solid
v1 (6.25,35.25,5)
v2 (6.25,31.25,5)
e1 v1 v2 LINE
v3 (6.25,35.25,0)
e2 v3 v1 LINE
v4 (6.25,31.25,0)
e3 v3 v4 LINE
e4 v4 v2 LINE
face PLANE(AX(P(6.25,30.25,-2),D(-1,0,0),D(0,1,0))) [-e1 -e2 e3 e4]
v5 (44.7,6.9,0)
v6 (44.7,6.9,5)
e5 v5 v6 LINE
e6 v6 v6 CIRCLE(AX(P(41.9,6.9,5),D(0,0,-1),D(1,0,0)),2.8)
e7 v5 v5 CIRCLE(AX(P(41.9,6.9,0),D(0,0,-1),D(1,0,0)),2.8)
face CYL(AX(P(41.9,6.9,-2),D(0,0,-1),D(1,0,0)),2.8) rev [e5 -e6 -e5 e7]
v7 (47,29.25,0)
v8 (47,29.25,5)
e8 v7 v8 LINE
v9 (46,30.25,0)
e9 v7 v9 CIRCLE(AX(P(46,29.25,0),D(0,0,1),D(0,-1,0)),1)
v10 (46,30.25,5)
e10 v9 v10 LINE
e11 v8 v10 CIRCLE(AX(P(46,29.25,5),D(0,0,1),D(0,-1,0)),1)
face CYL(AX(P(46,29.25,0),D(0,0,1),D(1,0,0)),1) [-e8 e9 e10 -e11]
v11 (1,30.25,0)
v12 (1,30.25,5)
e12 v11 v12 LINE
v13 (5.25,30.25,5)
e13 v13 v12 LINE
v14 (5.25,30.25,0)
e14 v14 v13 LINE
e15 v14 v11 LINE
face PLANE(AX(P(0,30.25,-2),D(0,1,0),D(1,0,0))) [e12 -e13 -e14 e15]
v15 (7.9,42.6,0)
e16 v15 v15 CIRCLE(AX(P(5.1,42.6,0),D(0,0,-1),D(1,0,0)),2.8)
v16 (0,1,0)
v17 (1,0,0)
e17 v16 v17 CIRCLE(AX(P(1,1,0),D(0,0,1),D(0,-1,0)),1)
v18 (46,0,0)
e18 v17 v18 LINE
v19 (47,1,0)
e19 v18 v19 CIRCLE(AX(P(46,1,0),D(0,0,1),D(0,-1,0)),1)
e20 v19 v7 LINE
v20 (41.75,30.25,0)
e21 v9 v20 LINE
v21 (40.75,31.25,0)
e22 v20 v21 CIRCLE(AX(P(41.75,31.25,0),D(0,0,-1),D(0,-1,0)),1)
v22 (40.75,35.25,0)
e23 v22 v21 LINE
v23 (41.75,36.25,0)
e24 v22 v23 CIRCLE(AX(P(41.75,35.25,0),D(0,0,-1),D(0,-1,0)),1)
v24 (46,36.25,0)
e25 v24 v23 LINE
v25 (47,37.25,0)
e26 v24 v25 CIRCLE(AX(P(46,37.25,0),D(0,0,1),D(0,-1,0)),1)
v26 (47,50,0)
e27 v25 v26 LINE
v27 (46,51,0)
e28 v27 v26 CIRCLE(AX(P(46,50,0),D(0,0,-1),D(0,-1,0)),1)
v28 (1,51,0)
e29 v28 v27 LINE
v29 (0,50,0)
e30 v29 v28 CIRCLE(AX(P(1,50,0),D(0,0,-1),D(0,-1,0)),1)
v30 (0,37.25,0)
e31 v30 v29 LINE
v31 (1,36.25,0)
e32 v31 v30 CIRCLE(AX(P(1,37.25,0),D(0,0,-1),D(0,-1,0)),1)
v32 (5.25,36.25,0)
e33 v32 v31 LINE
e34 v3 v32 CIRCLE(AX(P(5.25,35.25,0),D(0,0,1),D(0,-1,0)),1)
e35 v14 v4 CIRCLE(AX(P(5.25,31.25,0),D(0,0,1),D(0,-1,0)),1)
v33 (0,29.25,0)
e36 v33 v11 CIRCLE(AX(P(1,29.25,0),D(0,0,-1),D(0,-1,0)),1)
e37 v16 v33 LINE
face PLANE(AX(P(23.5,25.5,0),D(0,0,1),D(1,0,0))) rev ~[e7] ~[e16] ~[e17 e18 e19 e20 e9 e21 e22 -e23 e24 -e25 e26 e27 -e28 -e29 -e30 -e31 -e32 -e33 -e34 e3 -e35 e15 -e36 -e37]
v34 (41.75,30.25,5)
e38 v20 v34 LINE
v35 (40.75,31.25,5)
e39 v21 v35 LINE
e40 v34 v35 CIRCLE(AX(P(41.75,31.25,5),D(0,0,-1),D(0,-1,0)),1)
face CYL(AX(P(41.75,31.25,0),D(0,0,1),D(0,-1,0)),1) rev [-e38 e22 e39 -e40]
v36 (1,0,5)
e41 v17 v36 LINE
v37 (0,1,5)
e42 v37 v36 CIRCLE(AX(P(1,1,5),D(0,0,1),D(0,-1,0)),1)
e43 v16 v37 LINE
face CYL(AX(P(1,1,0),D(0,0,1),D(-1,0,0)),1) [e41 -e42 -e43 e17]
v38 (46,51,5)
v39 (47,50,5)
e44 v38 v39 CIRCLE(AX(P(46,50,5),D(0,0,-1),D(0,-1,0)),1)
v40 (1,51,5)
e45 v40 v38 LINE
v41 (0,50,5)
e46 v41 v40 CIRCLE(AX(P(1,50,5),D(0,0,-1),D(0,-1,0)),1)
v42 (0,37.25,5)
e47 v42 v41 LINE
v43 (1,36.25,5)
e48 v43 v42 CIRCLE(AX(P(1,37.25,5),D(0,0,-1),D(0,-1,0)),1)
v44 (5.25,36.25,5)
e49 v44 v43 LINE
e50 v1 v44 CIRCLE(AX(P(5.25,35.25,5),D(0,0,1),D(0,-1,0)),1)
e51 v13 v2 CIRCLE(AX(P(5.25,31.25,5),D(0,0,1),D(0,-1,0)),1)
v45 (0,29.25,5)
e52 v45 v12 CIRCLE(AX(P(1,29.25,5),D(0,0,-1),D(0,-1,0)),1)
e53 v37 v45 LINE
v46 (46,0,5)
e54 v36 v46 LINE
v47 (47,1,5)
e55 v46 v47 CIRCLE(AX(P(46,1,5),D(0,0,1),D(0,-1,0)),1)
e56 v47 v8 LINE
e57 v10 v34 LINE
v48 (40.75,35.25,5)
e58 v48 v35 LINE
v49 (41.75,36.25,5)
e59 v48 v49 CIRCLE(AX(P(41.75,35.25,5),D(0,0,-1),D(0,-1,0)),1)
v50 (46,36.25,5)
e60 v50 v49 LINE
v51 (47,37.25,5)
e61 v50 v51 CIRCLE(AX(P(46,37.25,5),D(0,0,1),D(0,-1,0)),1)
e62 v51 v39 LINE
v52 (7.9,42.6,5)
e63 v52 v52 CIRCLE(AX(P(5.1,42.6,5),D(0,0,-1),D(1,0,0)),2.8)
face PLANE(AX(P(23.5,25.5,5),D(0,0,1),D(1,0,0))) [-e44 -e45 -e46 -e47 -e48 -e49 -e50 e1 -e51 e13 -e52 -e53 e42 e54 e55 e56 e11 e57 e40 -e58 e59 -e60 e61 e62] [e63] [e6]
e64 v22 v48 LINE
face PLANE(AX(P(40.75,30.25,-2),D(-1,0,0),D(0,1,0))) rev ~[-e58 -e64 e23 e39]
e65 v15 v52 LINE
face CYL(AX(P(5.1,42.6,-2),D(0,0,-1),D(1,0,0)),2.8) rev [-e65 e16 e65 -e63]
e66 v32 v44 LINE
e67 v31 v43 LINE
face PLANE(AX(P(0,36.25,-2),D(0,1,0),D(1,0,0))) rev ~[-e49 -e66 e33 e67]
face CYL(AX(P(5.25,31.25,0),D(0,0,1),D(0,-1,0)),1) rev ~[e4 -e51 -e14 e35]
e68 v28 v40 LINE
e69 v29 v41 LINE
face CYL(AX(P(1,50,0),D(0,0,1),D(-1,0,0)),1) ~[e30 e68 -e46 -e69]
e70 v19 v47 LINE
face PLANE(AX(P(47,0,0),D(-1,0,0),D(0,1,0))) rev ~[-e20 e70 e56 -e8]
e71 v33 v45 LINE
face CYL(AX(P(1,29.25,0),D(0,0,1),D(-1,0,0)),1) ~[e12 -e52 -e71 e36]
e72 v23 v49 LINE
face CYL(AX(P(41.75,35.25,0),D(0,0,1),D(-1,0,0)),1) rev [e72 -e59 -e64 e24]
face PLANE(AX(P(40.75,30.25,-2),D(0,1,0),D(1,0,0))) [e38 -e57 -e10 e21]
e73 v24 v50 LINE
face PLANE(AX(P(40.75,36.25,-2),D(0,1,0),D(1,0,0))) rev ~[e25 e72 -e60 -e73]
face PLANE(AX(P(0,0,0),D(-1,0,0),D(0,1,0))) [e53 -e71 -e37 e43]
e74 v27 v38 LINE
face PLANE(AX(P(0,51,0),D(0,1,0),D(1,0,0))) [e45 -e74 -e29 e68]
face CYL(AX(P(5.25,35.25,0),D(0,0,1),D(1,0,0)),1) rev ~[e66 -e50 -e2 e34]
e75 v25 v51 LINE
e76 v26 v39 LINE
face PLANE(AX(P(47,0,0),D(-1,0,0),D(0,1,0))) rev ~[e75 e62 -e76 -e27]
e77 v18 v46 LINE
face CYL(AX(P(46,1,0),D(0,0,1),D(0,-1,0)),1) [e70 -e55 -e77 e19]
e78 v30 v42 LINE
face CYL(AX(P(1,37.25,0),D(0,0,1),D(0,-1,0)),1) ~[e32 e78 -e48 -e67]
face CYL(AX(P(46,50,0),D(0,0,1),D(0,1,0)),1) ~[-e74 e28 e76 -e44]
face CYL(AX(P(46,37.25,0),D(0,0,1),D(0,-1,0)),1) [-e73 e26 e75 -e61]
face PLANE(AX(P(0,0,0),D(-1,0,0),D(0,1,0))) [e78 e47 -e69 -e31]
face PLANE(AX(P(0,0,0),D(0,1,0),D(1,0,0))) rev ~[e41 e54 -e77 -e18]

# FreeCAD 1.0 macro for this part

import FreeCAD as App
import Part
import Sketcher

V = App.Vector


def edges_at(feature, points):
    """Names of the edges that pass closest to the given points."""
    edges = feature.Shape.Edges
    near = lambda p: min(range(len(edges)), key=lambda i: edges[i].distToShape(Part.Vertex(*p))[0])
    return sorted({f"Edge{near(p) + 1}" for p in points})

doc = App.newDocument("Part")
body = doc.addObject("PartDesign::Body", "Body")

# Sketch on XY plane
sketch1 = doc.addObject("Sketcher::SketchObject", "Sketch")
body.addObject(sketch1)
sketch1.AttachmentSupport = (doc.XY_Plane, [""])
sketch1.MapMode = "FlatFace"
sketch1.AttachmentOffset = App.Placement(V(0, 0, -2), App.Rotation())
sketch1.addGeometry([
    Part.LineSegment(V(41, 36, 0), V(41, 30, 0)),
    Part.LineSegment(V(41, 30, 0), V(47, 30, 0)),
    Part.LineSegment(V(47, 30, 0), V(47, 36, 0)),
    Part.LineSegment(V(47, 36, 0), V(41, 36, 0)),
], False)
sketch1.addConstraint([
    Sketcher.Constraint("Coincident", 0, 2, 1, 1),
    Sketcher.Constraint("Coincident", 1, 2, 2, 1),
    Sketcher.Constraint("Coincident", 2, 2, 3, 1),
    Sketcher.Constraint("Coincident", 3, 2, 0, 1),
    Sketcher.Constraint("Vertical", 0),
    Sketcher.Constraint("Horizontal", 1),
    Sketcher.Constraint("Vertical", 2),
    Sketcher.Constraint("Horizontal", 3),
    Sketcher.Constraint("DistanceY", 0, 2, 0, 1, 6.0),
    Sketcher.Constraint("DistanceX", -1, 1, 1, 2, 47.0),
    Sketcher.Constraint("DistanceX", 1, 1, 1, 2, 6.25),
    Sketcher.Constraint("DistanceY", -1, 1, 0, 2, 30.25),
])
pad1 = doc.addObject("PartDesign::Pad", "Pad")
body.addObject(pad1)
pad1.Profile = sketch1
pad1.Length = 10
body2 = doc.addObject("PartDesign::Body", "Body001")
body2.AllowCompound = True

# Sketch on XY plane
sketch2 = doc.addObject("Sketcher::SketchObject", "Sketch001")
body2.addObject(sketch2)
sketch2.AttachmentSupport = (doc.getObject("XY_Plane001"), [""])
sketch2.MapMode = "FlatFace"
sketch2.AttachmentOffset = App.Placement(V(0, 0, -2), App.Rotation())
sketch2.addGeometry([
    Part.LineSegment(V(0, 36, 0), V(0, 30, 0)),
    Part.LineSegment(V(0, 30, 0), V(6, 30, 0)),
    Part.LineSegment(V(6, 30, 0), V(6, 36, 0)),
    Part.LineSegment(V(6, 36, 0), V(0, 36, 0)),
], False)
sketch2.addConstraint([
    Sketcher.Constraint("Coincident", 0, 2, 1, 1),
    Sketcher.Constraint("Coincident", 1, 2, 2, 1),
    Sketcher.Constraint("Coincident", 2, 2, 3, 1),
    Sketcher.Constraint("Coincident", 3, 2, 0, 1),
    Sketcher.Constraint("Vertical", 0),
    Sketcher.Constraint("Horizontal", 1),
    Sketcher.Constraint("Vertical", 2),
    Sketcher.Constraint("Horizontal", 3),
    Sketcher.Constraint("PointOnObject", 0, 2, -2),
    Sketcher.Constraint("DistanceY", 0, 2, 0, 1, 6.0),
    Sketcher.Constraint("DistanceX", 1, 1, 1, 2, 6.25),
    Sketcher.Constraint("DistanceY", -1, 1, 0, 2, 30.25),
])
pad2 = doc.addObject("PartDesign::Pad", "Pad001")
body2.addObject(pad2)
pad2.Profile = sketch2
pad2.Length = 10
doc.recompute()

boolean = doc.addObject("PartDesign::Boolean", "Boolean")
body2.addObject(boolean)
boolean.Type = "Fuse"
boolean.addObjects([body])
body3 = doc.addObject("PartDesign::Body", "Body002")

# Sketch on XY plane
sketch3 = doc.addObject("Sketcher::SketchObject", "Sketch002")
body3.addObject(sketch3)
sketch3.AttachmentSupport = (doc.getObject("XY_Plane002"), [""])
sketch3.MapMode = "FlatFace"
sketch3.AttachmentOffset = App.Placement(V(0, 0, -2), App.Rotation())
sketch3.addGeometry(Part.Circle(V(41.9, 6.9, 0), V(0, 0, 1), 2.8), False)
sketch3.addConstraint([
    Sketcher.Constraint("Diameter", 0, 5.6),
    Sketcher.Constraint("DistanceX", -1, 1, 0, 3, 41.9),
    Sketcher.Constraint("DistanceY", -1, 1, 0, 3, 6.9),
])
pad3 = doc.addObject("PartDesign::Pad", "Pad002")
body3.addObject(pad3)
pad3.Profile = sketch3
pad3.Length = 10
body4 = doc.addObject("PartDesign::Body", "Body003")

# Sketch on XY plane
sketch4 = doc.addObject("Sketcher::SketchObject", "Sketch003")
body4.addObject(sketch4)
sketch4.AttachmentSupport = (doc.getObject("XY_Plane003"), [""])
sketch4.MapMode = "FlatFace"
sketch4.AttachmentOffset = App.Placement(V(0, 0, -2), App.Rotation())
sketch4.addGeometry(Part.Circle(V(5.1, 42.6, 0), V(0, 0, 1), 2.8), False)
sketch4.addConstraint([
    Sketcher.Constraint("Diameter", 0, 5.6),
    Sketcher.Constraint("DistanceX", -1, 1, 0, 3, 5.1),
    Sketcher.Constraint("DistanceY", -1, 1, 0, 3, 42.6),
])
pad4 = doc.addObject("PartDesign::Pad", "Pad003")
body4.addObject(pad4)
pad4.Profile = sketch4
pad4.Length = 10
body5 = doc.addObject("PartDesign::Body", "Body004")

# Sketch on XY plane
sketch5 = doc.addObject("Sketcher::SketchObject", "Sketch004")
body5.addObject(sketch5)
sketch5.AttachmentSupport = (doc.getObject("XY_Plane004"), [""])
sketch5.MapMode = "FlatFace"
sketch5.addGeometry([
    Part.LineSegment(V(0, 51, 0), V(0, 0, 0)),
    Part.LineSegment(V(0, 0, 0), V(47, 0, 0)),
    Part.LineSegment(V(47, 0, 0), V(47, 51, 0)),
    Part.LineSegment(V(47, 51, 0), V(0, 51, 0)),
], False)
sketch5.addConstraint([
    Sketcher.Constraint("Coincident", 0, 2, 1, 1),
    Sketcher.Constraint("Coincident", 1, 2, 2, 1),
    Sketcher.Constraint("Coincident", 2, 2, 3, 1),
    Sketcher.Constraint("Coincident", 3, 2, 0, 1),
    Sketcher.Constraint("Vertical", 0),
    Sketcher.Constraint("Horizontal", 1),
    Sketcher.Constraint("Vertical", 2),
    Sketcher.Constraint("Horizontal", 3),
    Sketcher.Constraint("Coincident", 0, 2, -1, 1),
    Sketcher.Constraint("DistanceX", 1, 1, 1, 2, 47.0),
    Sketcher.Constraint("DistanceY", 0, 2, 0, 1, 51.0),
])
pad5 = doc.addObject("PartDesign::Pad", "Pad004")
body5.addObject(pad5)
pad5.Profile = sketch5
pad5.Length = 5
doc.recompute()

boolean2 = doc.addObject("PartDesign::Boolean", "Boolean001")
body5.addObject(boolean2)
boolean2.Type = "Cut"
boolean2.addObjects([body4])
doc.recompute()

boolean3 = doc.addObject("PartDesign::Boolean", "Boolean002")
body5.addObject(boolean3)
boolean3.Type = "Cut"
boolean3.addObjects([body3])
doc.recompute()

boolean4 = doc.addObject("PartDesign::Boolean", "Boolean003")
body5.addObject(boolean4)
boolean4.Type = "Cut"
boolean4.addObjects([body2])
doc.recompute()

fillet = doc.addObject("PartDesign::Fillet", "Fillet")
body5.addObject(fillet)
fillet.Base = (boolean4, edges_at(boolean4, [
    (0, 0, 2.5),
    (47, 0, 2.5),
    (0, 51, 2.5),
    (47, 51, 2.5),
]))
fillet.Radius = 1
doc.recompute()

fillet2 = doc.addObject("PartDesign::Fillet", "Fillet001")
body5.addObject(fillet2)
fillet2.Base = (fillet, edges_at(fillet, [
    (0, 30.25, 2.5),
    (0, 36.25, 2.5),
    (47, 30.25, 2.5),
    (47, 36.25, 2.5),
]))
fillet2.Radius = 1
doc.recompute()

fillet3 = doc.addObject("PartDesign::Fillet", "Fillet002")
body5.addObject(fillet3)
fillet3.Base = (fillet2, edges_at(fillet2, [
    (6.25, 30.25, 2.5),
    (6.25, 36.25, 2.5),
    (40.75, 30.25, 2.5),
    (40.75, 36.25, 2.5),
]))
fillet3.Radius = 1

doc.recompute()
